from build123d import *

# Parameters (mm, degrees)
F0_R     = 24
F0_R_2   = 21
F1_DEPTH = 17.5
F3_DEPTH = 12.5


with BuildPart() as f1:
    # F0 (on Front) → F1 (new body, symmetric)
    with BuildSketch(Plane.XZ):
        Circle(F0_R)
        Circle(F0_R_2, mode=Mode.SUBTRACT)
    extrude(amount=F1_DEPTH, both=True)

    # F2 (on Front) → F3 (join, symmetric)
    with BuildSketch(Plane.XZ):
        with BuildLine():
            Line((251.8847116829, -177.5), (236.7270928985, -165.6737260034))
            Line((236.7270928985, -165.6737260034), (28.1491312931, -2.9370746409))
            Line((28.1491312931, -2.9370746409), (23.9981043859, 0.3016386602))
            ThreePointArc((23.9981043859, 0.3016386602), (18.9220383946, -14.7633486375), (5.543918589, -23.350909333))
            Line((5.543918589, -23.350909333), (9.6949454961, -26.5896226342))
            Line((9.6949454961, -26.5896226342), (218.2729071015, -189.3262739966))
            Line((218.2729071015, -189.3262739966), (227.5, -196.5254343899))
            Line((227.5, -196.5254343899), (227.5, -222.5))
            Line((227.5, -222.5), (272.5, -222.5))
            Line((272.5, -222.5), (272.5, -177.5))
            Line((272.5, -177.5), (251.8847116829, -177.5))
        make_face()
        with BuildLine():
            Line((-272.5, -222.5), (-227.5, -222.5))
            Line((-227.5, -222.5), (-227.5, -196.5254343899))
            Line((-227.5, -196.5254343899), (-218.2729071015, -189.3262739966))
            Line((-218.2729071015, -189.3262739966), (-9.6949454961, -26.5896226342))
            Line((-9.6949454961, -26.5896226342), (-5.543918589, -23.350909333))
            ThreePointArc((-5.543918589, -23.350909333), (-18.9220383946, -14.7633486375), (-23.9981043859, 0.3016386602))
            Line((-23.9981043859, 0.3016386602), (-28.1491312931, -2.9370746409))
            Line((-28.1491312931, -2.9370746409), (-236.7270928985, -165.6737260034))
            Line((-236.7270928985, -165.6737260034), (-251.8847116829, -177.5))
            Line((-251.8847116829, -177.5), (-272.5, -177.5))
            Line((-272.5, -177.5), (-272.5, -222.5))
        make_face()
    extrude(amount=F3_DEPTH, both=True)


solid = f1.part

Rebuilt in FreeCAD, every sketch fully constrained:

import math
import FreeCAD as App
import Part
import Sketcher

V = App.Vector
Q = App.Units.Quantity

doc = App.newDocument("Part")
body = doc.addObject("PartDesign::Body", "Body")

# Sketch on XZ plane
sketch1 = body.newObject("Sketcher::SketchObject", "Sketch")
sketch1.AttachmentSupport = (doc.getObject("XZ_Plane"), [""])
sketch1.MapMode = "FlatFace"
sketch1.addGeometry(Part.Circle(V(0, 0, 0), V(0, 0, 1), 24), False)
sketch1.addGeometry(Part.Circle(V(0, 0, 0), V(0, 0, 1), 21), False)
sketch1.addConstraint(Sketcher.Constraint("Coincident", 0, 3, -1, 1))
sketch1.addConstraint(Sketcher.Constraint("Coincident", 1, 3, -1, 1))
sketch1.addConstraint(Sketcher.Constraint("Diameter", 0, Q("48 mm")))
sketch1.addConstraint(Sketcher.Constraint("Diameter", 1, Q("42 mm")))
pad1 = body.newObject("PartDesign::Pad", "Pad")
pad1.Profile = sketch1
pad1.Length = 35
pad1.Midplane = True

# Sketch on XZ plane
sketch2 = body.newObject("Sketcher::SketchObject", "Sketch001")
sketch2.AttachmentSupport = (doc.getObject("XZ_Plane"), [""])
sketch2.MapMode = "FlatFace"
sketch2.addGeometry(Part.LineSegment(V(252, -178, 0), V(28, -3, 0)), False)
sketch2.addGeometry(Part.LineSegment(V(28, -3, 0), V(24, 0, 0)), False)
sketch2.addGeometry(Part.ArcOfCircle(Part.Circle(V(0, 0, 0), V(0, 0, 1), 24), math.radians(-77), math.radians(1)), False)
sketch2.addGeometry(Part.LineSegment(V(6, -23, 0), V(10, -27, 0)), False)
sketch2.addGeometry(Part.LineSegment(V(10, -27, 0), V(218, -189, 0)), False)
sketch2.addGeometry(Part.LineSegment(V(218, -189, 0), V(228, -197, 0)), False)
sketch2.addGeometry(Part.LineSegment(V(228, -197, 0), V(228, -222, 0)), False)
sketch2.addGeometry(Part.LineSegment(V(228, -222, 0), V(272, -222, 0)), False)
sketch2.addGeometry(Part.LineSegment(V(272, -222, 0), V(272, -178, 0)), False)
sketch2.addGeometry(Part.LineSegment(V(272, -178, 0), V(252, -178, 0)), False)
sketch2.addGeometry(Part.LineSegment(V(-272, -222, 0), V(-228, -222, 0)), False)
sketch2.addGeometry(Part.LineSegment(V(-228, -222, 0), V(-228, -197, 0)), False)
sketch2.addGeometry(Part.LineSegment(V(-228, -197, 0), V(-218, -189, 0)), False)
sketch2.addGeometry(Part.LineSegment(V(-218, -189, 0), V(-10, -27, 0)), False)
sketch2.addGeometry(Part.LineSegment(V(-10, -27, 0), V(-6, -23, 0)), False)
sketch2.addGeometry(Part.ArcOfCircle(Part.Circle(V(0, 0, 0), V(0, 0, 1), 24), math.radians(179), math.radians(257)), False)
sketch2.addGeometry(Part.LineSegment(V(-24, 0, 0), V(-28, -3, 0)), False)
sketch2.addGeometry(Part.LineSegment(V(-28, -3, 0), V(-252, -178, 0)), False)
sketch2.addGeometry(Part.LineSegment(V(-252, -178, 0), V(-272, -178, 0)), False)
sketch2.addGeometry(Part.LineSegment(V(-272, -178, 0), V(-272, -222, 0)), False)
sketch2.addConstraint(Sketcher.Constraint("Coincident", 0, 2, 1, 1))
sketch2.addConstraint(Sketcher.Constraint("Coincident", 1, 2, 2, 2))
sketch2.addConstraint(Sketcher.Constraint("Coincident", 2, 1, 3, 1))
sketch2.addConstraint(Sketcher.Constraint("Coincident", 3, 2, 4, 1))
sketch2.addConstraint(Sketcher.Constraint("Coincident", 4, 2, 5, 1))
sketch2.addConstraint(Sketcher.Constraint("Coincident", 5, 2, 6, 1))
sketch2.addConstraint(Sketcher.Constraint("Coincident", 6, 2, 7, 1))
sketch2.addConstraint(Sketcher.Constraint("Coincident", 7, 2, 8, 1))
sketch2.addConstraint(Sketcher.Constraint("Coincident", 8, 2, 9, 1))
sketch2.addConstraint(Sketcher.Constraint("Coincident", 9, 2, 0, 1))
sketch2.addConstraint(Sketcher.Constraint("Coincident", 10, 2, 11, 1))
sketch2.addConstraint(Sketcher.Constraint("Coincident", 11, 2, 12, 1))
sketch2.addConstraint(Sketcher.Constraint("Coincident", 12, 2, 13, 1))
sketch2.addConstraint(Sketcher.Constraint("Coincident", 13, 2, 14, 1))
sketch2.addConstraint(Sketcher.Constraint("Coincident", 14, 2, 15, 2))
sketch2.addConstraint(Sketcher.Constraint("Coincident", 15, 1, 16, 1))
sketch2.addConstraint(Sketcher.Constraint("Coincident", 16, 2, 17, 1))
sketch2.addConstraint(Sketcher.Constraint("Coincident", 17, 2, 18, 1))
sketch2.addConstraint(Sketcher.Constraint("Coincident", 18, 2, 19, 1))
sketch2.addConstraint(Sketcher.Constraint("Coincident", 19, 2, 10, 1))
sketch2.addConstraint(Sketcher.Constraint("Vertical", 6))
sketch2.addConstraint(Sketcher.Constraint("Horizontal", 7))
sketch2.addConstraint(Sketcher.Constraint("Vertical", 8))
sketch2.addConstraint(Sketcher.Constraint("Horizontal", 9))
sketch2.addConstraint(Sketcher.Constraint("Horizontal", 10))
sketch2.addConstraint(Sketcher.Constraint("Vertical", 11))
sketch2.addConstraint(Sketcher.Constraint("Horizontal", 18))
sketch2.addConstraint(Sketcher.Constraint("Vertical", 19))
sketch2.addConstraint(Sketcher.Constraint("Coincident", 2, 3, -1, 1))
sketch2.addConstraint(Sketcher.Constraint("Coincident", 15, 3, -1, 1))
sketch2.addConstraint(Sketcher.Constraint("Equal", 2, 15))
sketch2.addConstraint(Sketcher.Constraint("Symmetric", 6, 2, 10, 2, -2))
sketch2.addConstraint(Sketcher.Constraint("Symmetric", 4, 2, 12, 2, -2))
sketch2.addConstraint(Sketcher.Constraint("Symmetric", 3, 2, 13, 2, -2))
sketch2.addConstraint(Sketcher.Constraint("Symmetric", 0, 2, 16, 2, -2))
sketch2.addConstraint(Sketcher.Constraint("Symmetric", 9, 2, 17, 2, -2))
sketch2.addConstraint(Sketcher.Constraint("Parallel", 0, 1))
sketch2.addConstraint(Sketcher.Constraint("Parallel", 1, 3))
sketch2.addConstraint(Sketcher.Constraint("Parallel", 3, 4))
sketch2.addConstraint(Sketcher.Constraint("Parallel", 4, 5))
sketch2.addConstraint(Sketcher.Constraint("Parallel", 12, 13))
sketch2.addConstraint(Sketcher.Constraint("Parallel", 13, 14))
sketch2.addConstraint(Sketcher.Constraint("Parallel", 14, 16))
sketch2.addConstraint(Sketcher.Constraint("Equal", 7, 10))
sketch2.addConstraint(Sketcher.Constraint("Equal", 10, 8))
sketch2.addConstraint(Sketcher.Constraint("Equal", 1, 3))
sketch2.addConstraint(Sketcher.Constraint("Radius", 2, Q("24 mm")))
sketch2.addConstraint(Sketcher.Constraint("DistanceX", 7, 1, 7, 2, Q("45 mm")))
sketch2.addConstraint(Sketcher.Constraint("DistanceX", -1, 1, 5, 2, Q("227.5 mm")))
sketch2.addConstraint(Sketcher.Constraint("DistanceY", 6, 2, -1, 1, Q("222.5 mm")))
sketch2.addConstraint(Sketcher.Constraint("DistanceX", 9, 2, 9, 1, Q("20.615288 mm")))
sketch2.addConstraint(Sketcher.Constraint("DistanceY", 4, 2, 0, 2, Q("186.389199 mm")))
sketch2.addConstraint(Sketcher.Constraint("Distance", 4, Q("264.552422 mm")))
sketch2.addConstraint(Sketcher.Constraint("DistanceY", 6, 2, 6, 1, Q("25.974566 mm")))
sketch2.addConstraint(Sketcher.Constraint("DistanceX", -1, 1, 0, 2, Q("28.149131 mm")))
pad2 = body.newObject("PartDesign::Pad", "Pad001")
pad2.Profile = sketch2
pad2.Length = 25
pad2.Midplane = True

doc.recompute()
